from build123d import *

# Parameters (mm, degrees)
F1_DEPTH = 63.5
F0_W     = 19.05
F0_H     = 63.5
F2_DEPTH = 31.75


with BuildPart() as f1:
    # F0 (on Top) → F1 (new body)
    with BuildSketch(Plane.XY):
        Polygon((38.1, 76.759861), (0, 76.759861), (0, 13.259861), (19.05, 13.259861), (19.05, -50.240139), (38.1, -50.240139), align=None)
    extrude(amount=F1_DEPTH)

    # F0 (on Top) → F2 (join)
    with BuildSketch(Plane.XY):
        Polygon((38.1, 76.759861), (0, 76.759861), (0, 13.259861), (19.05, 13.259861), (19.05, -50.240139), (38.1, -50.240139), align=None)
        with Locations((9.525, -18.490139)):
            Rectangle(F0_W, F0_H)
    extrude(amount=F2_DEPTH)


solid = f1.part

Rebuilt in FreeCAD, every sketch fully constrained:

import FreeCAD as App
import Part
import Sketcher

V = App.Vector
Q = App.Units.Quantity


def add_polygon(sketch, points):
    """Adds a closed chain of lines whose ends are joined by coincident constraints."""
    first, n = sketch.GeometryCount, len(points)
    for a, b in zip(points, points[1:] + points[:1]):
        sketch.addGeometry(Part.LineSegment(App.Vector(*a, 0), App.Vector(*b, 0)), False)
    for i in range(n):
        sketch.addConstraint(Sketcher.Constraint("Coincident", first + i, 2, first + (i + 1) % n, 1))

doc = App.newDocument("Part")
body = doc.addObject("PartDesign::Body", "Body")

# Sketch on XY plane
sketch1 = body.newObject("Sketcher::SketchObject", "Sketch")
sketch1.AttachmentSupport = (doc.getObject("XY_Plane"), [""])
sketch1.MapMode = "FlatFace"
add_polygon(sketch1, [(38, 77), (0, 77), (0, 13), (19, 13), (19, -50), (38, -50)])  # lines 0-5
sketch1.addConstraint([
    Sketcher.Constraint("Horizontal", 0),
    Sketcher.Constraint("Vertical", 1),
    Sketcher.Constraint("Horizontal", 2),
    Sketcher.Constraint("Vertical", 3),
    Sketcher.Constraint("Horizontal", 4),
    Sketcher.Constraint("Vertical", 5),
    Sketcher.Constraint("PointOnObject", 0, 2, -2),
    Sketcher.Constraint("Equal", 2, 4),
    Sketcher.Constraint("Equal", 1, 3),
    Sketcher.Constraint("DistanceY", 5, 1, 5, 2, Q("5 in")),
    Sketcher.Constraint("DistanceX", 0, 2, 0, 1, Q("1.5 in")),
    Sketcher.Constraint("DistanceY", -1, 1, 0, 2, 76.759861),
])
pad1 = body.newObject("PartDesign::Pad", "Pad")
pad1.Profile = sketch1
pad1.Length = Q("2.5 in")

# Sketch on XY plane
sketch2 = body.newObject("Sketcher::SketchObject", "Sketch001")
sketch2.AttachmentSupport = (doc.getObject("XY_Plane"), [""])
sketch2.MapMode = "FlatFace"
add_polygon(sketch2, [(38, 77), (0, 77), (0, -50), (38, -50)])  # lines 0-3
sketch2.addConstraint([
    Sketcher.Constraint("Horizontal", 0),
    Sketcher.Constraint("Vertical", 1),
    Sketcher.Constraint("Horizontal", 2),
    Sketcher.Constraint("Vertical", 3),
    Sketcher.Constraint("PointOnObject", 0, 2, -2),
    Sketcher.Constraint("DistanceY", 1, 2, 1, 1, Q("5 in")),
    Sketcher.Constraint("DistanceX", 0, 2, 0, 1, Q("1.5 in")),
    Sketcher.Constraint("DistanceY", -1, 1, 0, 2, 76.759861),
])
pad2 = body.newObject("PartDesign::Pad", "Pad001")
pad2.Profile = sketch2
pad2.Length = Q("1.25 in")

doc.recompute()
